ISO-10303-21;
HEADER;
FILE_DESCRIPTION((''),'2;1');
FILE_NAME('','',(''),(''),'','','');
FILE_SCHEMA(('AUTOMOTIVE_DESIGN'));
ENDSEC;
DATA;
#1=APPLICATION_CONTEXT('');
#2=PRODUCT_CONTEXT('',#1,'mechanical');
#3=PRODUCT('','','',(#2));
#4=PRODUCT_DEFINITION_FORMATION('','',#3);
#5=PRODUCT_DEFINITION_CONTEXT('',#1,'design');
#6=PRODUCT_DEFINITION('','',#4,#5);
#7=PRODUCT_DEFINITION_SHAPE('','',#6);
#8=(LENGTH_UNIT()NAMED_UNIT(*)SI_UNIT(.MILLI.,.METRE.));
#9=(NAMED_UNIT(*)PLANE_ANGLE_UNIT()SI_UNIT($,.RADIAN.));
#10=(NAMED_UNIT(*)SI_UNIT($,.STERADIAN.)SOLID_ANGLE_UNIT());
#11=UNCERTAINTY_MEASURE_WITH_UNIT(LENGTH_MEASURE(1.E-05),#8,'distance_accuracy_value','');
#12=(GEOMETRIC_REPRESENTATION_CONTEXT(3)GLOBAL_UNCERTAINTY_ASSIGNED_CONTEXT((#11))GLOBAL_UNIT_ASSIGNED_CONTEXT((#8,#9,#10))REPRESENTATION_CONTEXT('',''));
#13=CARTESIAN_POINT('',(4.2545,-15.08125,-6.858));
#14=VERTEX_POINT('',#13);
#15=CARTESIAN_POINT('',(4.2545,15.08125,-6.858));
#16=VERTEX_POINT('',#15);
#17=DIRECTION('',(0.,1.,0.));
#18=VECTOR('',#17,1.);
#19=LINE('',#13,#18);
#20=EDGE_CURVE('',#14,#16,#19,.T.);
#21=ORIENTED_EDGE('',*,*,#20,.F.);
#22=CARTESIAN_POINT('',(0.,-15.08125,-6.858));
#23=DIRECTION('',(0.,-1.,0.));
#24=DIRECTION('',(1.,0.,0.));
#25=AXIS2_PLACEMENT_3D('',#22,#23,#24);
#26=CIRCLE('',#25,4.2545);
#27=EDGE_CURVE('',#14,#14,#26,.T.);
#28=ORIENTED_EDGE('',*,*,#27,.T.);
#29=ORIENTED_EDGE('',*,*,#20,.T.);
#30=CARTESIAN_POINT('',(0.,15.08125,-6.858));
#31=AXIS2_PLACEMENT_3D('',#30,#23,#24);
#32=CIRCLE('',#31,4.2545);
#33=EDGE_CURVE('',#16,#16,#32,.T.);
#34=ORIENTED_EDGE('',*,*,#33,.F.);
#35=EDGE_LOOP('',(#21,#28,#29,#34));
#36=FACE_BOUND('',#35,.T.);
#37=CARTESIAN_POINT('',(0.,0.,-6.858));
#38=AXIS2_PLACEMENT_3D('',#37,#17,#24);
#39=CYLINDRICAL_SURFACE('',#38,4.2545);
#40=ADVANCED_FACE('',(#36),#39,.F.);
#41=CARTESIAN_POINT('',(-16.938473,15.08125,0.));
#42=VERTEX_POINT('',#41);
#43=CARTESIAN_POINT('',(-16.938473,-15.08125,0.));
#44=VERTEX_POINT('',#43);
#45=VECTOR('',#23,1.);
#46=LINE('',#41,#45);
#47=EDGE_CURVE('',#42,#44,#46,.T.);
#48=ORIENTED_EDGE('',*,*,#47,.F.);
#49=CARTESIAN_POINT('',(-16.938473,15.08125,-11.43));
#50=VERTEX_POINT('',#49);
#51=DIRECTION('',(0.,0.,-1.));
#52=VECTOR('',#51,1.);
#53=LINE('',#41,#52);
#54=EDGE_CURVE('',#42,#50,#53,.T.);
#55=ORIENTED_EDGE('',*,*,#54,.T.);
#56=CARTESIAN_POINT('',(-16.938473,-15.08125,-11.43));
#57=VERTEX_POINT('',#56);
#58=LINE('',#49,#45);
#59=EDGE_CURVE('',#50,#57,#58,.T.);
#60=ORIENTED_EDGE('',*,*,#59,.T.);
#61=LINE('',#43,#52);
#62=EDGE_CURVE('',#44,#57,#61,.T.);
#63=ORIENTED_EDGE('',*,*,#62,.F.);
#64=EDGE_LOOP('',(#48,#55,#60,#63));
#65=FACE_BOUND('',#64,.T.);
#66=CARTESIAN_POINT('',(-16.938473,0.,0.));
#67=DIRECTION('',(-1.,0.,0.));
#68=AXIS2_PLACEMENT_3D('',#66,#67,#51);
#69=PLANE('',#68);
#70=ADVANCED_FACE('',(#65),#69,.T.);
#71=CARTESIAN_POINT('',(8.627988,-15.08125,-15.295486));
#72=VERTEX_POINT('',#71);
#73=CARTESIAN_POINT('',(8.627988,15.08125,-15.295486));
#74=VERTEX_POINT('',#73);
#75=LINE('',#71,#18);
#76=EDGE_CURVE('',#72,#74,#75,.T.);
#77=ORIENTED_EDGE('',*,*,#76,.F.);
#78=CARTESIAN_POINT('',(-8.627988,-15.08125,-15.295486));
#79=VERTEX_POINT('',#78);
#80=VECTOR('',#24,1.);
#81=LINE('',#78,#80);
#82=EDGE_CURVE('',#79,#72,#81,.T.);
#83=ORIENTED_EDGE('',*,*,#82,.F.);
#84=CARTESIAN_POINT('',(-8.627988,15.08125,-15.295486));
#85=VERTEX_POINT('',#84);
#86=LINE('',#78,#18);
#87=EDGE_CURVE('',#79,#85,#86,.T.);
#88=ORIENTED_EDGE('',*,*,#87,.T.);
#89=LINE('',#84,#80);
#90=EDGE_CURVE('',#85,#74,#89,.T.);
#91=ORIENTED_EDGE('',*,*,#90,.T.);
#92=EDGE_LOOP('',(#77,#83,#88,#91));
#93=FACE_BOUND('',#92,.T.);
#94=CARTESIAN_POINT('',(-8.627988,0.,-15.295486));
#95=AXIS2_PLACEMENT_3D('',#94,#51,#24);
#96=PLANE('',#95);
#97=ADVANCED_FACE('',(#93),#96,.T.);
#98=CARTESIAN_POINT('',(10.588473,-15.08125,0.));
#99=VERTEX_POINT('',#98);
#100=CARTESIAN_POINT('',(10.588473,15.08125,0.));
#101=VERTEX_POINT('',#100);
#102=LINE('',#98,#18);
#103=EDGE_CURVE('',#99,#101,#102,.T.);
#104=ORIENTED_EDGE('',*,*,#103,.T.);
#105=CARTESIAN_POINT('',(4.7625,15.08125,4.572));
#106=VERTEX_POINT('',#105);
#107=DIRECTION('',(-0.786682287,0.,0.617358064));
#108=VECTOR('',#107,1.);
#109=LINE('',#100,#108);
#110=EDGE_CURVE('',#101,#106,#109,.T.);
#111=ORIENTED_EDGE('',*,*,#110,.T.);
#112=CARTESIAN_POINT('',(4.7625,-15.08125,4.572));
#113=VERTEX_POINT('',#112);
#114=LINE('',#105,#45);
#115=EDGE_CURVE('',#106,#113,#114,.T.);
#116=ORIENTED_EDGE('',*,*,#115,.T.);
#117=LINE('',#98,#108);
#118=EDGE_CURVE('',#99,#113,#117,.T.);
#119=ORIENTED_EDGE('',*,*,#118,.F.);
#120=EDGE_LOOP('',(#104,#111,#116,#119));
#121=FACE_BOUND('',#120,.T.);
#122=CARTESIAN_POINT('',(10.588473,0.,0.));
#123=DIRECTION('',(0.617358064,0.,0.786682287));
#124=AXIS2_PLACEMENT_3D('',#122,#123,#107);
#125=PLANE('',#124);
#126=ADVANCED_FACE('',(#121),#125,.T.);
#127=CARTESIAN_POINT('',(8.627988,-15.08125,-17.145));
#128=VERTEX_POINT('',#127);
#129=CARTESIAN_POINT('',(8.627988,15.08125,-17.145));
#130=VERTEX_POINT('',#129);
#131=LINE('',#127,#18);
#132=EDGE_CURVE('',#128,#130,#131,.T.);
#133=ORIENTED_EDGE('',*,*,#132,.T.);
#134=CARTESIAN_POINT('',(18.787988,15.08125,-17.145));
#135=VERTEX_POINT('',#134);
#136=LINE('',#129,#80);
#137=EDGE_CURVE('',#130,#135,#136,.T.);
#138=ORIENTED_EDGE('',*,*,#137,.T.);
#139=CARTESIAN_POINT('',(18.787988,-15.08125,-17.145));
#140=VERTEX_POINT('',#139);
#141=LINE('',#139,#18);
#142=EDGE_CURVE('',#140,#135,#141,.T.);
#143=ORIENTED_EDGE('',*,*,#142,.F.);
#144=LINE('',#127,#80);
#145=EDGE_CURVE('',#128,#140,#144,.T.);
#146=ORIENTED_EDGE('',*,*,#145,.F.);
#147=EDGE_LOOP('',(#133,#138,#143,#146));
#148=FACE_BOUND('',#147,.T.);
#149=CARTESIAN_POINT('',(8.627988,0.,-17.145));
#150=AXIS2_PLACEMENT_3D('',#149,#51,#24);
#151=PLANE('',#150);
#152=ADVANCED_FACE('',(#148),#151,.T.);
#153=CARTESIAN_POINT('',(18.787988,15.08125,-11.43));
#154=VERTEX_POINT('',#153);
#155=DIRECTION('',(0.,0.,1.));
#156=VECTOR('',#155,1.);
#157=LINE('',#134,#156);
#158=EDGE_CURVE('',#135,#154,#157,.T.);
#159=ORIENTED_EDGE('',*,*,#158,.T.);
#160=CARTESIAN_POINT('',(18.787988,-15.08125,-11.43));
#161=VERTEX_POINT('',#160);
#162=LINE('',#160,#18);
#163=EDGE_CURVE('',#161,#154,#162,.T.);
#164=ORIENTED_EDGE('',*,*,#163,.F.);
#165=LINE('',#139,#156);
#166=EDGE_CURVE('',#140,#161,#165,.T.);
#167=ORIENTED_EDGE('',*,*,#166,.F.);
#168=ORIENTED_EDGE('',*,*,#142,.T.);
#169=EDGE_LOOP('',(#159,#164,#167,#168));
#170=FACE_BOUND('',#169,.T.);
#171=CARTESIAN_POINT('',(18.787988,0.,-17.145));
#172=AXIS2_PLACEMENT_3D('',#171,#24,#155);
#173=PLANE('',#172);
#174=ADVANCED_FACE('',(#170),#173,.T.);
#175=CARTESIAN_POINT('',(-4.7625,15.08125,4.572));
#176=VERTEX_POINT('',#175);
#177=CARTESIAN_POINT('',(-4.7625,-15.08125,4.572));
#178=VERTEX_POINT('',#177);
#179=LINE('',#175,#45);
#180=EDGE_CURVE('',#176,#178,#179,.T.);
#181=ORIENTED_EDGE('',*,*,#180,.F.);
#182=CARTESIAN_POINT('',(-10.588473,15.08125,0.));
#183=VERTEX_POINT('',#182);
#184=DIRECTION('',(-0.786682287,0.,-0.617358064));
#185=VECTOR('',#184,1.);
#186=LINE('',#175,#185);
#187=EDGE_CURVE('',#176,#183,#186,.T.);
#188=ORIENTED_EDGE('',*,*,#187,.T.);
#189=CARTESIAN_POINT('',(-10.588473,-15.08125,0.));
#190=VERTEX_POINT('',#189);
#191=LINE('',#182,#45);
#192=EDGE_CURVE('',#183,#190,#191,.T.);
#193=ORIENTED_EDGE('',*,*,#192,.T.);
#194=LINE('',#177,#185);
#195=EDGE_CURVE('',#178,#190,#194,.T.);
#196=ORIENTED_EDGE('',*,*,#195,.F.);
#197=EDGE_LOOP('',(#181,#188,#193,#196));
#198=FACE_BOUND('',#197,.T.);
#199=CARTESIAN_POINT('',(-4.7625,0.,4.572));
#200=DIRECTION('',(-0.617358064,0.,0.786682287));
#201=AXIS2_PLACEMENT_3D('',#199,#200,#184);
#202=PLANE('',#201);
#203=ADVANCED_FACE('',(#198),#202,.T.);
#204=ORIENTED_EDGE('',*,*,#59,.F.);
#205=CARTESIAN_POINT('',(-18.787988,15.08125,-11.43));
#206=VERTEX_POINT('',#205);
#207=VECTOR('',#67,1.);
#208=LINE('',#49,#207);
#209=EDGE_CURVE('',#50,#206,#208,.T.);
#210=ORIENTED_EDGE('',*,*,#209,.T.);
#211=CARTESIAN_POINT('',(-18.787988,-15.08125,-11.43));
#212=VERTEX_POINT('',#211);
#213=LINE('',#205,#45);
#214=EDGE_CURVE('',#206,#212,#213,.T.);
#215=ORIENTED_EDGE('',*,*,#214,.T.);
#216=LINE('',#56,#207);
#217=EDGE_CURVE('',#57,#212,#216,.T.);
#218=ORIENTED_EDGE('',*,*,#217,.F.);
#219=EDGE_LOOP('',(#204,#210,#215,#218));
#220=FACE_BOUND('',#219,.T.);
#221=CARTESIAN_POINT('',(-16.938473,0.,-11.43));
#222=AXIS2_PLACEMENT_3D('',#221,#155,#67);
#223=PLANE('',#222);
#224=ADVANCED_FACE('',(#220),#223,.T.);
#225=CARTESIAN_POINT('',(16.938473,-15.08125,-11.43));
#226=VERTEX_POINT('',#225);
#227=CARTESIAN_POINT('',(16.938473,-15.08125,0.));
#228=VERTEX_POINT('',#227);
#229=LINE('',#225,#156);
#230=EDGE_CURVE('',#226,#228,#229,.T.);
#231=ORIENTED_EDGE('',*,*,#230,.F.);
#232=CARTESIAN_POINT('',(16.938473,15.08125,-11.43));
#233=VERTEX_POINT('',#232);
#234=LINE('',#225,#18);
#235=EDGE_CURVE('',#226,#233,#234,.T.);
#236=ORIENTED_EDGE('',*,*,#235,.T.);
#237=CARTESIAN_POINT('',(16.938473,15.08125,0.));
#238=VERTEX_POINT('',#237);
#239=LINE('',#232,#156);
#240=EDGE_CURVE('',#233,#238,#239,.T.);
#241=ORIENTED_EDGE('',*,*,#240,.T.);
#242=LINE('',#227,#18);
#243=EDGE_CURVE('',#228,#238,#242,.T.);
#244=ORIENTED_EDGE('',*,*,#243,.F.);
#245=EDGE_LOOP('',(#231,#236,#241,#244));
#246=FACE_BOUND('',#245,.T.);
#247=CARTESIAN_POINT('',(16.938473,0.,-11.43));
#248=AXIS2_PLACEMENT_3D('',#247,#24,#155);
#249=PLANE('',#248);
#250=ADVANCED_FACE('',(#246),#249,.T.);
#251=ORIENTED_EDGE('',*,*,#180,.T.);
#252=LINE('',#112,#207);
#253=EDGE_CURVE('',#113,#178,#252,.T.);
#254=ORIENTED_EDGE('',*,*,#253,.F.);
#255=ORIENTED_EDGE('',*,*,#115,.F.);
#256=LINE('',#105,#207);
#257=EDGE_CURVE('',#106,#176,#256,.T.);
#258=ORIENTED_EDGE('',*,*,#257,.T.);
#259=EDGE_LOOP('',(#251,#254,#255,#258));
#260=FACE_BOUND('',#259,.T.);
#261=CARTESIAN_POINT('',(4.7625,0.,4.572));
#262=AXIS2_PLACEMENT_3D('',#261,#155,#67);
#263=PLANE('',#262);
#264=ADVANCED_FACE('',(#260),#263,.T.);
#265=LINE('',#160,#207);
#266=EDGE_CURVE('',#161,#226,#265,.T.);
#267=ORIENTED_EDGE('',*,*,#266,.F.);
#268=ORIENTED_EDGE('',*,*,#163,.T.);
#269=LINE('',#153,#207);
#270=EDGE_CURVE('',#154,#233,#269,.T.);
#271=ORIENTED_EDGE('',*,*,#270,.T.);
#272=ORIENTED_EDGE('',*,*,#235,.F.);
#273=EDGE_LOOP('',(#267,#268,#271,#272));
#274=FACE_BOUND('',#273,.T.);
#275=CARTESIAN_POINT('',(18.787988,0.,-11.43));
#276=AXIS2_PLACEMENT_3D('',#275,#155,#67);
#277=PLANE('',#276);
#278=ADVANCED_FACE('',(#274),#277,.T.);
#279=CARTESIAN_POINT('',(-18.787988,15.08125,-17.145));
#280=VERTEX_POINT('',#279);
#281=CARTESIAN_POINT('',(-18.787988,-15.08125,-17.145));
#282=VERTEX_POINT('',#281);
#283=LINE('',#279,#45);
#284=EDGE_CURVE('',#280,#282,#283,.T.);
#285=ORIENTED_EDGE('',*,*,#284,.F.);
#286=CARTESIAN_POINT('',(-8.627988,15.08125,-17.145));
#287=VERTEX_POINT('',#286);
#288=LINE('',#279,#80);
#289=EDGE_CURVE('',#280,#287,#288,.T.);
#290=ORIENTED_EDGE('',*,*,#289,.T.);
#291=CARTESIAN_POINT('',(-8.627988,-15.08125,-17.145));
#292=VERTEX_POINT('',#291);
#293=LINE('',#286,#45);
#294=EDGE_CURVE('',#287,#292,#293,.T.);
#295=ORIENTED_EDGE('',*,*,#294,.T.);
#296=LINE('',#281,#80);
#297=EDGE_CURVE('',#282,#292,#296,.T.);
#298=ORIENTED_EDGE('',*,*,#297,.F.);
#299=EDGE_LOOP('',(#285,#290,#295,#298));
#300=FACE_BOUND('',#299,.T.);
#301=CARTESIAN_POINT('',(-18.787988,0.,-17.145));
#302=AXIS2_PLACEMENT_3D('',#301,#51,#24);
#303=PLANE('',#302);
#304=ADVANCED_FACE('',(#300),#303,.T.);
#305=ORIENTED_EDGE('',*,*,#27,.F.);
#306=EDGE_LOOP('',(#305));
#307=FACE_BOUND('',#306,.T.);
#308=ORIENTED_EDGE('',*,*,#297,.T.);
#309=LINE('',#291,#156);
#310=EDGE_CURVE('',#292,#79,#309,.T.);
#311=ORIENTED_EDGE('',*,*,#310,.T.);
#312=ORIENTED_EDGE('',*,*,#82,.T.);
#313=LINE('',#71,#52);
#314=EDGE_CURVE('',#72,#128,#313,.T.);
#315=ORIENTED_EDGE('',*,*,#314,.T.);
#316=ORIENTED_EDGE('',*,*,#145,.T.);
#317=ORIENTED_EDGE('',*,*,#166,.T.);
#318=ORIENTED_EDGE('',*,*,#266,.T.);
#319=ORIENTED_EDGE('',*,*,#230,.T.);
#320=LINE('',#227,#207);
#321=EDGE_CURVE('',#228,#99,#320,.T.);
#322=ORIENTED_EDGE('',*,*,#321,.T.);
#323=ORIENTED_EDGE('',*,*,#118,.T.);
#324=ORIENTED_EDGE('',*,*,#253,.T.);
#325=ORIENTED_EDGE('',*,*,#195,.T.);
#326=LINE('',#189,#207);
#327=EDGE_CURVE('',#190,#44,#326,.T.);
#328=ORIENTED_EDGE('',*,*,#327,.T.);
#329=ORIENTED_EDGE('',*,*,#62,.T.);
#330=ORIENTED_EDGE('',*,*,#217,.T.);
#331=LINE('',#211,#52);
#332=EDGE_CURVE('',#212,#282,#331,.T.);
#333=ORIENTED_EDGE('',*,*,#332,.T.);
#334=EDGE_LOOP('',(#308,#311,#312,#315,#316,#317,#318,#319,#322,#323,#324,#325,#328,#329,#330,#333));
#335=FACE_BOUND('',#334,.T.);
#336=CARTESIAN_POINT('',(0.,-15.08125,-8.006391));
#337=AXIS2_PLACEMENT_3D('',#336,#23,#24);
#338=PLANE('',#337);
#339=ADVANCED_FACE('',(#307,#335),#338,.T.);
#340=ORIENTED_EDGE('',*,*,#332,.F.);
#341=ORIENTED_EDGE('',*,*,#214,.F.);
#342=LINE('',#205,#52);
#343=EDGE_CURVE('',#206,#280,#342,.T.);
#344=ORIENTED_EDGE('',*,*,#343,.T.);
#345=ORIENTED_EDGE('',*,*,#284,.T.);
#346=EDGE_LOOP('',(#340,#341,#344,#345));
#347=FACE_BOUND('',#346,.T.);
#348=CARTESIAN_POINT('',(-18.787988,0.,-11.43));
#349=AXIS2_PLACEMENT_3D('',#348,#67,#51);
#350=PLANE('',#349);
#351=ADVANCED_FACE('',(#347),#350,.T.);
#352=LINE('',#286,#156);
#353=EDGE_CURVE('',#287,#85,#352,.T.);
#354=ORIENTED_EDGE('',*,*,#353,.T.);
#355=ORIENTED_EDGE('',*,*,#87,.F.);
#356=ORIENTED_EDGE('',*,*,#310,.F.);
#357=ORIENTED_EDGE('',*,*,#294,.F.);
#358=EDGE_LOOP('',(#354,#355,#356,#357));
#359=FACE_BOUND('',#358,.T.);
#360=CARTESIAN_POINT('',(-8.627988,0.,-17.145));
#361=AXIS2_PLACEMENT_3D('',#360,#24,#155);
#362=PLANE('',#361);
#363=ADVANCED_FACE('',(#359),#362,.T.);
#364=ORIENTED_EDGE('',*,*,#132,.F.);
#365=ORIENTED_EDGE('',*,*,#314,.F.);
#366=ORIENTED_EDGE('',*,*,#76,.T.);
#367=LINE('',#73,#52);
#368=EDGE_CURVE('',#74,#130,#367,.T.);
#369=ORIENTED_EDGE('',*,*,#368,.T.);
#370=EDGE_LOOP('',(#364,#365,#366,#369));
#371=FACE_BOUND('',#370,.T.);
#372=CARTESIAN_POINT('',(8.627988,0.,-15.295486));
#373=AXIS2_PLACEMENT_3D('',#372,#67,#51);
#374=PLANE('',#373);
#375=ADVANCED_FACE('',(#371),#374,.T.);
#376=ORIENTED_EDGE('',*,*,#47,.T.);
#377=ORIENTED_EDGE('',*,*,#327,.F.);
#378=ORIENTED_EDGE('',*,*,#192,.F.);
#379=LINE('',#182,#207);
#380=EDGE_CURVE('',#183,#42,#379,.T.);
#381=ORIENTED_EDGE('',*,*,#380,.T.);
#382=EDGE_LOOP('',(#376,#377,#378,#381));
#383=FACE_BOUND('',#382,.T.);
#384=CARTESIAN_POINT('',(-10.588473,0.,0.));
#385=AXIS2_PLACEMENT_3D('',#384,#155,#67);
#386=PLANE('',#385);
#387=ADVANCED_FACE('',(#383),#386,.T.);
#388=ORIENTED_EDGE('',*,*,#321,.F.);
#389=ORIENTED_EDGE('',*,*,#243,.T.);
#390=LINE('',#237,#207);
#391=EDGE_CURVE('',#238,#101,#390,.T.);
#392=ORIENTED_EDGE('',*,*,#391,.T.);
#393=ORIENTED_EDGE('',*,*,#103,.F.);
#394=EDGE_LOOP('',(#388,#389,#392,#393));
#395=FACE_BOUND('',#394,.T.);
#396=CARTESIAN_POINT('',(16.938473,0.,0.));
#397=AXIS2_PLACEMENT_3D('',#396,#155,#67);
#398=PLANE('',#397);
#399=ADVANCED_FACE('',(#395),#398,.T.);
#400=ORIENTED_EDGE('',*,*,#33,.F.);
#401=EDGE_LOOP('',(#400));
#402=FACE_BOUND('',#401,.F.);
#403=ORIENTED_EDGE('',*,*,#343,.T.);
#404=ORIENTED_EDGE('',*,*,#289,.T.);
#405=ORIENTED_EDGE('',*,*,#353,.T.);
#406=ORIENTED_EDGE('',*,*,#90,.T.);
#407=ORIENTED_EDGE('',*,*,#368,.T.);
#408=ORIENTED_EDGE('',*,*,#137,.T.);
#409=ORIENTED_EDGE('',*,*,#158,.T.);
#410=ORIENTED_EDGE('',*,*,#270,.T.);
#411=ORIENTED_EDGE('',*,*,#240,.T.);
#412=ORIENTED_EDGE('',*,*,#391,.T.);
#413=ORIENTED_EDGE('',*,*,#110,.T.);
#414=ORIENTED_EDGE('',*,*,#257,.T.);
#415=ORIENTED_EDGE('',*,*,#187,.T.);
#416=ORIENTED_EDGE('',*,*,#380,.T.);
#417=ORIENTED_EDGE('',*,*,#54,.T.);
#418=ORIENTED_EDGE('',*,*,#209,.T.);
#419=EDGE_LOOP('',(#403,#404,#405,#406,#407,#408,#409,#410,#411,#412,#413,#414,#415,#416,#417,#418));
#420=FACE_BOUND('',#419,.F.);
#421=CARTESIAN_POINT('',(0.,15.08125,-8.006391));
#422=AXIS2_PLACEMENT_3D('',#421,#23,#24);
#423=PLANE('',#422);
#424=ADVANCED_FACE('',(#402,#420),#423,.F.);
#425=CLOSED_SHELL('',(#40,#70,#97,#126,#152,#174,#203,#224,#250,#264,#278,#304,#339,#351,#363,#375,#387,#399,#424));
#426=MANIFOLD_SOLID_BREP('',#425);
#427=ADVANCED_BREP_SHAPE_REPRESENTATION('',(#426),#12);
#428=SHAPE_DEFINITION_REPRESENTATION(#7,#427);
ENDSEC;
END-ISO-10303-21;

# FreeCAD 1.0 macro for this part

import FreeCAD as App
import Part
import Sketcher
Q = App.Units.Quantity

doc = App.newDocument("Part")
body = doc.addObject("PartDesign::Body", "Body")

# Sketch on XZ plane
sketch1 = doc.addObject("Sketcher::SketchObject", "Sketch")
body.addObject(sketch1)
sketch1.AttachmentSupport = (doc.XZ_Plane, [""])
sketch1.MapMode = "FlatFace"
sketch1.addGeometry([
    Part.LineSegment(App.Vector(10.6, 0, 0), App.Vector(4.8, 4.6, 0)),  # 0
    Part.LineSegment(App.Vector(4.8, 4.6, 0), App.Vector(-4.8, 4.6, 0)),  # 1
    Part.LineSegment(App.Vector(-4.8, 4.6, 0), App.Vector(-10.6, 0, 0)),  # 2
    Part.LineSegment(App.Vector(-10.6, 0, 0), App.Vector(-16.9, 0, 0)),  # 3
    Part.LineSegment(App.Vector(-16.9, 0, 0), App.Vector(-16.9, -11.4, 0)),  # 4
    Part.LineSegment(App.Vector(-16.9, -11.4, 0), App.Vector(-18.8, -11.4, 0)),  # 5
    Part.LineSegment(App.Vector(-18.8, -11.4, 0), App.Vector(-18.8, -17.1, 0)),  # 6
    Part.LineSegment(App.Vector(-18.8, -17.1, 0), App.Vector(-8.6, -17.1, 0)),  # 7
    Part.LineSegment(App.Vector(-8.6, -17.1, 0), App.Vector(-8.6, -15.3, 0)),  # 8
    Part.LineSegment(App.Vector(-8.6, -15.3, 0), App.Vector(8.6, -15.3, 0)),  # 9
    Part.LineSegment(App.Vector(8.6, -15.3, 0), App.Vector(8.6, -17.1, 0)),  # 10
    Part.LineSegment(App.Vector(8.6, -17.1, 0), App.Vector(18.8, -17.1, 0)),  # 11
    Part.LineSegment(App.Vector(18.8, -17.1, 0), App.Vector(18.8, -11.4, 0)),  # 12
    Part.LineSegment(App.Vector(18.8, -11.4, 0), App.Vector(16.9, -11.4, 0)),  # 13
    Part.LineSegment(App.Vector(16.9, -11.4, 0), App.Vector(16.9, 0, 0)),  # 14
    Part.LineSegment(App.Vector(16.9, 0, 0), App.Vector(10.6, 0, 0)),  # 15
    Part.Circle(App.Vector(0, -6.9, 0), App.Vector(0, 0, 1), 4.3),  # 16
], False)
sketch1.addConstraint([
    Sketcher.Constraint("Coincident", 0, 2, 1, 1),
    Sketcher.Constraint("Coincident", 1, 2, 2, 1),
    Sketcher.Constraint("Coincident", 2, 2, 3, 1),
    Sketcher.Constraint("Coincident", 3, 2, 4, 1),
    Sketcher.Constraint("Coincident", 4, 2, 5, 1),
    Sketcher.Constraint("Coincident", 5, 2, 6, 1),
    Sketcher.Constraint("Coincident", 6, 2, 7, 1),
    Sketcher.Constraint("Coincident", 7, 2, 8, 1),
    Sketcher.Constraint("Coincident", 8, 2, 9, 1),
    Sketcher.Constraint("Coincident", 9, 2, 10, 1),
    Sketcher.Constraint("Coincident", 10, 2, 11, 1),
    Sketcher.Constraint("Coincident", 11, 2, 12, 1),
    Sketcher.Constraint("Coincident", 12, 2, 13, 1),
    Sketcher.Constraint("Coincident", 13, 2, 14, 1),
    Sketcher.Constraint("Coincident", 14, 2, 15, 1),
    Sketcher.Constraint("Coincident", 15, 2, 0, 1),
    Sketcher.Constraint("Horizontal", 1),
    Sketcher.Constraint("Horizontal", 3),
    Sketcher.Constraint("Vertical", 4),
    Sketcher.Constraint("Horizontal", 5),
    Sketcher.Constraint("Vertical", 6),
    Sketcher.Constraint("Horizontal", 7),
    Sketcher.Constraint("Vertical", 8),
    Sketcher.Constraint("Horizontal", 9),
    Sketcher.Constraint("Vertical", 10),
    Sketcher.Constraint("Horizontal", 11),
    Sketcher.Constraint("Vertical", 12),
    Sketcher.Constraint("Horizontal", 13),
    Sketcher.Constraint("Vertical", 14),
    Sketcher.Constraint("Horizontal", 15),
    Sketcher.Constraint("Symmetric", 3, 2, 14, 2, -1, 1),
    Sketcher.Constraint("Symmetric", 7, 2, 10, 2, -2),
    Sketcher.Constraint("Symmetric", 5, 2, 12, 2, -2),
    Sketcher.Constraint("Symmetric", 2, 2, 15, 2, -2),
    Sketcher.Constraint("PointOnObject", 16, 3, -2),
    Sketcher.Constraint("Equal", 13, 8),
    Sketcher.Constraint("Equal", 0, 2),
    Sketcher.Constraint("Diameter", 16, Q("0.335 in")),
    Sketcher.Constraint("DistanceX", 7, 1, 7, 2, Q("0.4 in")),
    Sketcher.Constraint("DistanceX", 3, 2, 3, 1, Q("0.25 in")),
    Sketcher.Constraint("DistanceY", 4, 2, 4, 1, Q("0.45 in")),
    Sketcher.Constraint("DistanceX", 1, 2, 1, 1, Q("0.375 in")),
    Sketcher.Constraint("DistanceY", 6, 2, 6, 1, Q("0.225 in")),
    Sketcher.Constraint("DistanceY", 16, 3, -1, 1, Q("0.27 in")),
    Sketcher.Constraint("DistanceY", -1, 1, 0, 2, Q("0.18 in")),
    Sketcher.Constraint("Distance", 0, Q("7.405751 mm")),
    Sketcher.Constraint("DistanceX", 5, 2, 5, 1, Q("1.849515 mm")),
])
pad1 = doc.addObject("PartDesign::Pad", "Pad")
body.addObject(pad1)
pad1.Profile = sketch1
pad1.Length = Q("1.1875 in")
pad1.Midplane = True

doc.recompute()
